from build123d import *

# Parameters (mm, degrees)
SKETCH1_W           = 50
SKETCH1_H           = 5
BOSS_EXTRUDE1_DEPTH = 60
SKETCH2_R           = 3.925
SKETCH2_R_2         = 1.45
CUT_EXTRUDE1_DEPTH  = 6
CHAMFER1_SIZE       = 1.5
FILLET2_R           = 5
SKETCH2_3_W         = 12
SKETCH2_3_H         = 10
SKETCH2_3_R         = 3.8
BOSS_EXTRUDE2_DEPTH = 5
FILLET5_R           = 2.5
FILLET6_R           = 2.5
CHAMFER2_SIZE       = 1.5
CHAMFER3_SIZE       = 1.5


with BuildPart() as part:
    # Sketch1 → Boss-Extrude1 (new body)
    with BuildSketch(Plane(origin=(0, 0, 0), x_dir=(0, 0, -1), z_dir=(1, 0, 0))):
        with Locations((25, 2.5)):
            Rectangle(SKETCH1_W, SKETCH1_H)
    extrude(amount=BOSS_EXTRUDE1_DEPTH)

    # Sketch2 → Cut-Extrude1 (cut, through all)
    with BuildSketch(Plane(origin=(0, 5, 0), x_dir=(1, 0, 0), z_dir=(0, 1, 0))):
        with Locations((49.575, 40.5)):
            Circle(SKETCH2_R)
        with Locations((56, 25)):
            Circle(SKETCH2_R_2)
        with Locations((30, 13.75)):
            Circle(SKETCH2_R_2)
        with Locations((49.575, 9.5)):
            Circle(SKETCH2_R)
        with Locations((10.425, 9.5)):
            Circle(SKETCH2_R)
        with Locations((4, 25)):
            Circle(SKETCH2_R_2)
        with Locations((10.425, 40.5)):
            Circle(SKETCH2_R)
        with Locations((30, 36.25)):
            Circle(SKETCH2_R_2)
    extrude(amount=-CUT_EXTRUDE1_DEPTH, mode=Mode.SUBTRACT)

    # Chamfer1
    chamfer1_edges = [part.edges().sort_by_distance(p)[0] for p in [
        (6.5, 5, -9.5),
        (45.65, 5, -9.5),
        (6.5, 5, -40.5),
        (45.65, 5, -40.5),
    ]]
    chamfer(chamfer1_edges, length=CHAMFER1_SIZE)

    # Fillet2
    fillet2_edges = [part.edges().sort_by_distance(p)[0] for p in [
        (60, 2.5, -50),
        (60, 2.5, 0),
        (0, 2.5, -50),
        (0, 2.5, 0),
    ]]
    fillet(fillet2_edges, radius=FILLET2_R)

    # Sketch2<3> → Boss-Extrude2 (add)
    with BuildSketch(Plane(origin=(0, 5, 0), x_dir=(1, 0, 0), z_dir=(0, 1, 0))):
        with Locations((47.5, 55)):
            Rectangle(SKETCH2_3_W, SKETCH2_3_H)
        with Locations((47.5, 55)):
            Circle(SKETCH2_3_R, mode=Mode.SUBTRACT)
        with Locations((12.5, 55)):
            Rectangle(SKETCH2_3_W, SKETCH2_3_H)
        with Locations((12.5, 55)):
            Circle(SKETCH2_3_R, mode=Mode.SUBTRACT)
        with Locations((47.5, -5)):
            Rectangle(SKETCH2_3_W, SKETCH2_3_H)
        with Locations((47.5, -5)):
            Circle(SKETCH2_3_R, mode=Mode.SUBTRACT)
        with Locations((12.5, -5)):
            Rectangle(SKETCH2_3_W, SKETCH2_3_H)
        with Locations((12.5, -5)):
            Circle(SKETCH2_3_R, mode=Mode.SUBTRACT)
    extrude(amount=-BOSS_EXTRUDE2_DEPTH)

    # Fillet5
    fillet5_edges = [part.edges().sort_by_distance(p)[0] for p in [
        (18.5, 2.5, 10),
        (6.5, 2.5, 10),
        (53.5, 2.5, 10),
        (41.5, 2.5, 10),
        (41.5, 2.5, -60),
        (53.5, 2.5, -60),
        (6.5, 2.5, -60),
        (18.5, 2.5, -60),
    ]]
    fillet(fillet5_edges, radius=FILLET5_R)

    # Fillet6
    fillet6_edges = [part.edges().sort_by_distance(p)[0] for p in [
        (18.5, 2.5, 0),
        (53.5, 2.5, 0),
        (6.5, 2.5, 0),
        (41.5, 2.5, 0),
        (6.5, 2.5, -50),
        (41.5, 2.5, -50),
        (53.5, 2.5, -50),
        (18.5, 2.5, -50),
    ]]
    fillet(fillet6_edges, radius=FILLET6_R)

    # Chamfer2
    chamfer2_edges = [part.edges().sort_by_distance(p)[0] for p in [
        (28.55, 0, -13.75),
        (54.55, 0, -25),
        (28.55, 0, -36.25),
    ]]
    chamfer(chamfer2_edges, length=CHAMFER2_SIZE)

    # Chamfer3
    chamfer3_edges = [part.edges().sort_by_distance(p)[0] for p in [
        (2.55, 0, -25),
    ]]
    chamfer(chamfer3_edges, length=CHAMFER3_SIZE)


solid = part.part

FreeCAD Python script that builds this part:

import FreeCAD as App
import Part
import Sketcher
from FreeCAD import Vector
Q = App.Units.Quantity


def edges_at(feature, points):
    """Names of the edges that pass closest to the given points."""
    edges = feature.Shape.Edges
    near = lambda p: min(range(len(edges)), key=lambda i: edges[i].distToShape(Part.Vertex(*p))[0])
    return sorted({f"Edge{near(p) + 1}" for p in points})

doc = App.newDocument("Part")
body = doc.addObject("PartDesign::Body", "Body")

# Sketch on YZ plane
sketch1 = doc.addObject("Sketcher::SketchObject", "Sketch")
body.addObject(sketch1)
sketch1.AttachmentSupport = (doc.YZ_Plane, [""])
sketch1.MapMode = "FlatFace"
sketch1.addGeometry(Part.LineSegment(Vector(5, 0, 0), Vector(0, 0, 0)), False)
sketch1.addGeometry(Part.LineSegment(Vector(0, 0, 0), Vector(0, -50, 0)), False)
sketch1.addGeometry(Part.LineSegment(Vector(0, -50, 0), Vector(5, -50, 0)), False)
sketch1.addGeometry(Part.LineSegment(Vector(5, -50, 0), Vector(5, 0, 0)), False)
sketch1.addConstraint(Sketcher.Constraint("Coincident", 0, 2, 1, 1))
sketch1.addConstraint(Sketcher.Constraint("Coincident", 1, 2, 2, 1))
sketch1.addConstraint(Sketcher.Constraint("Coincident", 2, 2, 3, 1))
sketch1.addConstraint(Sketcher.Constraint("Coincident", 3, 2, 0, 1))
sketch1.addConstraint(Sketcher.Constraint("Horizontal", 0))
sketch1.addConstraint(Sketcher.Constraint("Vertical", 1))
sketch1.addConstraint(Sketcher.Constraint("Horizontal", 2))
sketch1.addConstraint(Sketcher.Constraint("Vertical", 3))
sketch1.addConstraint(Sketcher.Constraint("Coincident", 0, 2, -1, 1))
sketch1.addConstraint(Sketcher.Constraint("DistanceX", 0, 2, 0, 1, Q("5 mm")))
sketch1.addConstraint(Sketcher.Constraint("DistanceY", 1, 2, 1, 1, Q("50 mm")))
pad1 = doc.addObject("PartDesign::Pad", "Pad")
body.addObject(pad1)
pad1.Profile = sketch1
pad1.Length = 60

# Sketch on XZ plane
sketch2 = doc.addObject("Sketcher::SketchObject", "Sketch001")
body.addObject(sketch2)
sketch2.AttachmentSupport = (doc.XZ_Plane, [""])
sketch2.MapMode = "FlatFace"
sketch2.AttachmentOffset = App.Placement(Vector(0, 0, -5), App.Rotation())
sketch2.addGeometry(Part.Circle(Vector(49.575, -40.5, 0), Vector(0, 0, 1), 3.925), False)
sketch2.addGeometry(Part.Circle(Vector(56, -25, 0), Vector(0, 0, 1), 1.45), False)
sketch2.addGeometry(Part.Circle(Vector(30, -13.75, 0), Vector(0, 0, 1), 1.45), False)
sketch2.addGeometry(Part.Circle(Vector(49.575, -9.5, 0), Vector(0, 0, 1), 3.925), False)
sketch2.addGeometry(Part.Circle(Vector(10.425, -9.5, 0), Vector(0, 0, 1), 3.925), False)
sketch2.addGeometry(Part.Circle(Vector(4, -25, 0), Vector(0, 0, 1), 1.45), False)
sketch2.addGeometry(Part.Circle(Vector(10.425, -40.5, 0), Vector(0, 0, 1), 3.925), False)
sketch2.addGeometry(Part.Circle(Vector(30, -36.25, 0), Vector(0, 0, 1), 1.45), False)
sketch2.addConstraint(Sketcher.Constraint("Equal", 1, 2))
sketch2.addConstraint(Sketcher.Constraint("Equal", 0, 3))
sketch2.addConstraint(Sketcher.Constraint("Equal", 3, 4))
sketch2.addConstraint(Sketcher.Constraint("Equal", 2, 5))
sketch2.addConstraint(Sketcher.Constraint("Equal", 4, 6))
sketch2.addConstraint(Sketcher.Constraint("Equal", 5, 7))
sketch2.addConstraint(Sketcher.Constraint("Horizontal", 3, 3, 4, 3))
sketch2.addConstraint(Sketcher.Constraint("Horizontal", 1, 3, 5, 3))
sketch2.addConstraint(Sketcher.Constraint("Horizontal", 0, 3, 6, 3))
sketch2.addConstraint(Sketcher.Constraint("Vertical", 0, 3, 3, 3))
sketch2.addConstraint(Sketcher.Constraint("Vertical", 4, 3, 6, 3))
sketch2.addConstraint(Sketcher.Constraint("Vertical", 2, 3, 7, 3))
sketch2.addConstraint(Sketcher.Constraint("Diameter", 1, Q("2.9 mm")))
sketch2.addConstraint(Sketcher.Constraint("Diameter", 0, Q("7.85 mm")))
sketch2.addConstraint(Sketcher.Constraint("DistanceX", -1, 1, 1, 3, Q("56 mm")))
sketch2.addConstraint(Sketcher.Constraint("DistanceY", 1, 3, -1, 1, Q("25 mm")))
sketch2.addConstraint(Sketcher.Constraint("DistanceX", -1, 1, 2, 3, Q("30 mm")))
sketch2.addConstraint(Sketcher.Constraint("DistanceX", -1, 1, 5, 3, Q("4 mm")))
sketch2.addConstraint(Sketcher.Constraint("DistanceY", 0, 3, 3, 3, Q("31 mm")))
sketch2.addConstraint(Sketcher.Constraint("DistanceY", 0, 3, -1, 1, Q("40.5 mm")))
sketch2.addConstraint(Sketcher.Constraint("DistanceY", 7, 3, 2, 3, Q("22.5 mm")))
sketch2.addConstraint(Sketcher.Constraint("DistanceY", 2, 3, -1, 1, Q("13.75 mm")))
sketch2.addConstraint(Sketcher.Constraint("DistanceX", 4, 3, 3, 3, Q("39.15 mm")))
sketch2.addConstraint(Sketcher.Constraint("DistanceX", -1, 1, 0, 3, Q("49.575 mm")))
pocket1 = doc.addObject("PartDesign::Pocket", "Pocket")
body.addObject(pocket1)
pocket1.Profile = sketch2
pocket1.Type = "ThroughAll"
pocket1.Reversed = True
doc.recompute()

chamfer = doc.addObject("PartDesign::Chamfer", "Chamfer")
body.addObject(chamfer)
chamfer.Base = (pocket1, edges_at(pocket1, [
    (6.5, 5, -9.5),
    (45.65, 5, -9.5),
    (6.5, 5, -40.5),
    (45.65, 5, -40.5),
]))
chamfer.Size = 1.5
doc.recompute()

fillet = doc.addObject("PartDesign::Fillet", "Fillet")
body.addObject(fillet)
fillet.Base = (chamfer, edges_at(chamfer, [
    (60, 2.5, -50),
    (60, 2.5, 0),
    (0, 2.5, -50),
    (0, 2.5, 0),
]))
fillet.Radius = 5

# Sketch on XZ plane
sketch3 = doc.addObject("Sketcher::SketchObject", "Sketch002")
body.addObject(sketch3)
sketch3.AttachmentSupport = (doc.XZ_Plane, [""])
sketch3.MapMode = "FlatFace"
sketch3.AttachmentOffset = App.Placement(Vector(0, 0, -5), App.Rotation())
sketch3.addGeometry(Part.LineSegment(Vector(41.5, -60, 0), Vector(41.5, -50, 0)), False)
sketch3.addGeometry(Part.LineSegment(Vector(41.5, -50, 0), Vector(53.5, -50, 0)), False)
sketch3.addGeometry(Part.LineSegment(Vector(53.5, -50, 0), Vector(53.5, -60, 0)), False)
sketch3.addGeometry(Part.LineSegment(Vector(53.5, -60, 0), Vector(41.5, -60, 0)), False)
sketch3.addGeometry(Part.Circle(Vector(47.5, -55, 0), Vector(0, 0, 1), 3.8), False)
sketch3.addGeometry(Part.LineSegment(Vector(6.5, -60, 0), Vector(6.5, -50, 0)), False)
sketch3.addGeometry(Part.LineSegment(Vector(6.5, -50, 0), Vector(18.5, -50, 0)), False)
sketch3.addGeometry(Part.LineSegment(Vector(18.5, -50, 0), Vector(18.5, -60, 0)), False)
sketch3.addGeometry(Part.LineSegment(Vector(18.5, -60, 0), Vector(6.5, -60, 0)), False)
sketch3.addGeometry(Part.Circle(Vector(12.5, -55, 0), Vector(0, 0, 1), 3.8), False)
sketch3.addGeometry(Part.LineSegment(Vector(41.5, 0, 0), Vector(41.5, 10, 0)), False)
sketch3.addGeometry(Part.LineSegment(Vector(41.5, 10, 0), Vector(53.5, 10, 0)), False)
sketch3.addGeometry(Part.LineSegment(Vector(53.5, 10, 0), Vector(53.5, 0, 0)), False)
sketch3.addGeometry(Part.LineSegment(Vector(53.5, 0, 0), Vector(41.5, 0, 0)), False)
sketch3.addGeometry(Part.Circle(Vector(47.5, 5, 0), Vector(0, 0, 1), 3.8), False)
sketch3.addGeometry(Part.LineSegment(Vector(6.5, 0, 0), Vector(6.5, 10, 0)), False)
sketch3.addGeometry(Part.LineSegment(Vector(6.5, 10, 0), Vector(18.5, 10, 0)), False)
sketch3.addGeometry(Part.LineSegment(Vector(18.5, 10, 0), Vector(18.5, 0, 0)), False)
sketch3.addGeometry(Part.LineSegment(Vector(18.5, 0, 0), Vector(6.5, 0, 0)), False)
sketch3.addGeometry(Part.Circle(Vector(12.5, 5, 0), Vector(0, 0, 1), 3.8), False)
sketch3.addConstraint(Sketcher.Constraint("Coincident", 0, 2, 1, 1))
sketch3.addConstraint(Sketcher.Constraint("Coincident", 1, 2, 2, 1))
sketch3.addConstraint(Sketcher.Constraint("Coincident", 2, 2, 3, 1))
sketch3.addConstraint(Sketcher.Constraint("Coincident", 3, 2, 0, 1))
sketch3.addConstraint(Sketcher.Constraint("Coincident", 5, 2, 6, 1))
sketch3.addConstraint(Sketcher.Constraint("Coincident", 6, 2, 7, 1))
sketch3.addConstraint(Sketcher.Constraint("Coincident", 7, 2, 8, 1))
sketch3.addConstraint(Sketcher.Constraint("Coincident", 8, 2, 5, 1))
sketch3.addConstraint(Sketcher.Constraint("Coincident", 10, 2, 11, 1))
sketch3.addConstraint(Sketcher.Constraint("Coincident", 11, 2, 12, 1))
sketch3.addConstraint(Sketcher.Constraint("Coincident", 12, 2, 13, 1))
sketch3.addConstraint(Sketcher.Constraint("Coincident", 13, 2, 10, 1))
sketch3.addConstraint(Sketcher.Constraint("Coincident", 15, 2, 16, 1))
sketch3.addConstraint(Sketcher.Constraint("Coincident", 16, 2, 17, 1))
sketch3.addConstraint(Sketcher.Constraint("Coincident", 17, 2, 18, 1))
sketch3.addConstraint(Sketcher.Constraint("Coincident", 18, 2, 15, 1))
sketch3.addConstraint(Sketcher.Constraint("Vertical", 0))
sketch3.addConstraint(Sketcher.Constraint("Horizontal", 1))
sketch3.addConstraint(Sketcher.Constraint("Vertical", 2))
sketch3.addConstraint(Sketcher.Constraint("Horizontal", 3))
sketch3.addConstraint(Sketcher.Constraint("Vertical", 5))
sketch3.addConstraint(Sketcher.Constraint("Horizontal", 6))
sketch3.addConstraint(Sketcher.Constraint("Vertical", 7))
sketch3.addConstraint(Sketcher.Constraint("Horizontal", 8))
sketch3.addConstraint(Sketcher.Constraint("Vertical", 10))
sketch3.addConstraint(Sketcher.Constraint("Horizontal", 11))
sketch3.addConstraint(Sketcher.Constraint("Vertical", 12))
sketch3.addConstraint(Sketcher.Constraint("Horizontal", 13))
sketch3.addConstraint(Sketcher.Constraint("Vertical", 15))
sketch3.addConstraint(Sketcher.Constraint("Horizontal", 16))
sketch3.addConstraint(Sketcher.Constraint("Vertical", 17))
sketch3.addConstraint(Sketcher.Constraint("Horizontal", 18))
sketch3.addConstraint(Sketcher.Constraint("Equal", 4, 9))
sketch3.addConstraint(Sketcher.Constraint("Equal", 9, 14))
sketch3.addConstraint(Sketcher.Constraint("Equal", 14, 19))
sketch3.addConstraint(Sketcher.Constraint("PointOnObject", 12, 2, -1))
sketch3.addConstraint(Sketcher.Constraint("PointOnObject", 17, 2, -1))
sketch3.addConstraint(Sketcher.Constraint("Horizontal", 4, 3, 9, 3))
sketch3.addConstraint(Sketcher.Constraint("Horizontal", 14, 3, 19, 3))
sketch3.addConstraint(Sketcher.Constraint("Horizontal", 1, 2, 5, 2))
sketch3.addConstraint(Sketcher.Constraint("Horizontal", 3, 2, 7, 2))
sketch3.addConstraint(Sketcher.Constraint("Horizontal", 11, 2, 15, 2))
sketch3.addConstraint(Sketcher.Constraint("Vertical", 4, 3, 14, 3))
sketch3.addConstraint(Sketcher.Constraint("Vertical", 9, 3, 19, 3))
sketch3.addConstraint(Sketcher.Constraint("Vertical", 3, 2, 10, 2))
sketch3.addConstraint(Sketcher.Constraint("Vertical", 2, 2, 11, 2))
sketch3.addConstraint(Sketcher.Constraint("Vertical", 8, 2, 15, 2))
sketch3.addConstraint(Sketcher.Constraint("Vertical", 7, 2, 16, 2))
sketch3.addConstraint(Sketcher.Constraint("Equal", 3, 6))
sketch3.addConstraint(Sketcher.Constraint("Equal", 7, 10))
sketch3.addConstraint(Sketcher.Constraint("Diameter", 4, Q("7.6 mm")))
sketch3.addConstraint(Sketcher.Constraint("DistanceX", 1, 1, 1, 2, Q("12 mm")))
sketch3.addConstraint(Sketcher.Constraint("DistanceY", 0, 1, 0, 2, Q("10 mm")))
sketch3.addConstraint(Sketcher.Constraint("DistanceY", 4, 3, -1, 1, Q("55 mm")))
sketch3.addConstraint(Sketcher.Constraint("DistanceY", -1, 1, 14, 3, Q("5 mm")))
sketch3.addConstraint(Sketcher.Constraint("DistanceY", 0, 2, -1, 1, Q("50 mm")))
sketch3.addConstraint(Sketcher.Constraint("DistanceX", 9, 3, 4, 3, Q("35 mm")))
sketch3.addConstraint(Sketcher.Constraint("DistanceX", 0, 2, 4, 3, Q("6 mm")))
sketch3.addConstraint(Sketcher.Constraint("DistanceX", 5, 2, 9, 3, Q("6 mm")))
sketch3.addConstraint(Sketcher.Constraint("DistanceX", -1, 1, 4, 3, Q("47.5 mm")))
pad2 = doc.addObject("PartDesign::Pad", "Pad001")
body.addObject(pad2)
pad2.Profile = sketch3
pad2.Length = 5
doc.recompute()

fillet2 = doc.addObject("PartDesign::Fillet", "Fillet001")
body.addObject(fillet2)
fillet2.Base = (pad2, edges_at(pad2, [
    (18.5, 2.5, 10),
    (6.5, 2.5, 10),
    (53.5, 2.5, 10),
    (41.5, 2.5, 10),
    (41.5, 2.5, -60),
    (53.5, 2.5, -60),
    (6.5, 2.5, -60),
    (18.5, 2.5, -60),
]))
fillet2.Radius = 2.5
doc.recompute()

fillet3 = doc.addObject("PartDesign::Fillet", "Fillet002")
body.addObject(fillet3)
fillet3.Base = (fillet2, edges_at(fillet2, [
    (18.5, 2.5, 0),
    (53.5, 2.5, 0),
    (6.5, 2.5, 0),
    (41.5, 2.5, 0),
    (6.5, 2.5, -50),
    (41.5, 2.5, -50),
    (53.5, 2.5, -50),
    (18.5, 2.5, -50),
]))
fillet3.Radius = 2.5
doc.recompute()

chamfer2 = doc.addObject("PartDesign::Chamfer", "Chamfer001")
body.addObject(chamfer2)
chamfer2.Base = (fillet3, edges_at(fillet3, [(28.55, 0, -13.75), (54.55, 0, -25), (28.55, 0, -36.25)]))
chamfer2.Size = 1.5
doc.recompute()

chamfer3 = doc.addObject("PartDesign::Chamfer", "Chamfer002")
body.addObject(chamfer3)
chamfer3.Base = (chamfer2, edges_at(chamfer2, [(2.55, 0, -25)]))
chamfer3.Size = 1.5

doc.recompute()
